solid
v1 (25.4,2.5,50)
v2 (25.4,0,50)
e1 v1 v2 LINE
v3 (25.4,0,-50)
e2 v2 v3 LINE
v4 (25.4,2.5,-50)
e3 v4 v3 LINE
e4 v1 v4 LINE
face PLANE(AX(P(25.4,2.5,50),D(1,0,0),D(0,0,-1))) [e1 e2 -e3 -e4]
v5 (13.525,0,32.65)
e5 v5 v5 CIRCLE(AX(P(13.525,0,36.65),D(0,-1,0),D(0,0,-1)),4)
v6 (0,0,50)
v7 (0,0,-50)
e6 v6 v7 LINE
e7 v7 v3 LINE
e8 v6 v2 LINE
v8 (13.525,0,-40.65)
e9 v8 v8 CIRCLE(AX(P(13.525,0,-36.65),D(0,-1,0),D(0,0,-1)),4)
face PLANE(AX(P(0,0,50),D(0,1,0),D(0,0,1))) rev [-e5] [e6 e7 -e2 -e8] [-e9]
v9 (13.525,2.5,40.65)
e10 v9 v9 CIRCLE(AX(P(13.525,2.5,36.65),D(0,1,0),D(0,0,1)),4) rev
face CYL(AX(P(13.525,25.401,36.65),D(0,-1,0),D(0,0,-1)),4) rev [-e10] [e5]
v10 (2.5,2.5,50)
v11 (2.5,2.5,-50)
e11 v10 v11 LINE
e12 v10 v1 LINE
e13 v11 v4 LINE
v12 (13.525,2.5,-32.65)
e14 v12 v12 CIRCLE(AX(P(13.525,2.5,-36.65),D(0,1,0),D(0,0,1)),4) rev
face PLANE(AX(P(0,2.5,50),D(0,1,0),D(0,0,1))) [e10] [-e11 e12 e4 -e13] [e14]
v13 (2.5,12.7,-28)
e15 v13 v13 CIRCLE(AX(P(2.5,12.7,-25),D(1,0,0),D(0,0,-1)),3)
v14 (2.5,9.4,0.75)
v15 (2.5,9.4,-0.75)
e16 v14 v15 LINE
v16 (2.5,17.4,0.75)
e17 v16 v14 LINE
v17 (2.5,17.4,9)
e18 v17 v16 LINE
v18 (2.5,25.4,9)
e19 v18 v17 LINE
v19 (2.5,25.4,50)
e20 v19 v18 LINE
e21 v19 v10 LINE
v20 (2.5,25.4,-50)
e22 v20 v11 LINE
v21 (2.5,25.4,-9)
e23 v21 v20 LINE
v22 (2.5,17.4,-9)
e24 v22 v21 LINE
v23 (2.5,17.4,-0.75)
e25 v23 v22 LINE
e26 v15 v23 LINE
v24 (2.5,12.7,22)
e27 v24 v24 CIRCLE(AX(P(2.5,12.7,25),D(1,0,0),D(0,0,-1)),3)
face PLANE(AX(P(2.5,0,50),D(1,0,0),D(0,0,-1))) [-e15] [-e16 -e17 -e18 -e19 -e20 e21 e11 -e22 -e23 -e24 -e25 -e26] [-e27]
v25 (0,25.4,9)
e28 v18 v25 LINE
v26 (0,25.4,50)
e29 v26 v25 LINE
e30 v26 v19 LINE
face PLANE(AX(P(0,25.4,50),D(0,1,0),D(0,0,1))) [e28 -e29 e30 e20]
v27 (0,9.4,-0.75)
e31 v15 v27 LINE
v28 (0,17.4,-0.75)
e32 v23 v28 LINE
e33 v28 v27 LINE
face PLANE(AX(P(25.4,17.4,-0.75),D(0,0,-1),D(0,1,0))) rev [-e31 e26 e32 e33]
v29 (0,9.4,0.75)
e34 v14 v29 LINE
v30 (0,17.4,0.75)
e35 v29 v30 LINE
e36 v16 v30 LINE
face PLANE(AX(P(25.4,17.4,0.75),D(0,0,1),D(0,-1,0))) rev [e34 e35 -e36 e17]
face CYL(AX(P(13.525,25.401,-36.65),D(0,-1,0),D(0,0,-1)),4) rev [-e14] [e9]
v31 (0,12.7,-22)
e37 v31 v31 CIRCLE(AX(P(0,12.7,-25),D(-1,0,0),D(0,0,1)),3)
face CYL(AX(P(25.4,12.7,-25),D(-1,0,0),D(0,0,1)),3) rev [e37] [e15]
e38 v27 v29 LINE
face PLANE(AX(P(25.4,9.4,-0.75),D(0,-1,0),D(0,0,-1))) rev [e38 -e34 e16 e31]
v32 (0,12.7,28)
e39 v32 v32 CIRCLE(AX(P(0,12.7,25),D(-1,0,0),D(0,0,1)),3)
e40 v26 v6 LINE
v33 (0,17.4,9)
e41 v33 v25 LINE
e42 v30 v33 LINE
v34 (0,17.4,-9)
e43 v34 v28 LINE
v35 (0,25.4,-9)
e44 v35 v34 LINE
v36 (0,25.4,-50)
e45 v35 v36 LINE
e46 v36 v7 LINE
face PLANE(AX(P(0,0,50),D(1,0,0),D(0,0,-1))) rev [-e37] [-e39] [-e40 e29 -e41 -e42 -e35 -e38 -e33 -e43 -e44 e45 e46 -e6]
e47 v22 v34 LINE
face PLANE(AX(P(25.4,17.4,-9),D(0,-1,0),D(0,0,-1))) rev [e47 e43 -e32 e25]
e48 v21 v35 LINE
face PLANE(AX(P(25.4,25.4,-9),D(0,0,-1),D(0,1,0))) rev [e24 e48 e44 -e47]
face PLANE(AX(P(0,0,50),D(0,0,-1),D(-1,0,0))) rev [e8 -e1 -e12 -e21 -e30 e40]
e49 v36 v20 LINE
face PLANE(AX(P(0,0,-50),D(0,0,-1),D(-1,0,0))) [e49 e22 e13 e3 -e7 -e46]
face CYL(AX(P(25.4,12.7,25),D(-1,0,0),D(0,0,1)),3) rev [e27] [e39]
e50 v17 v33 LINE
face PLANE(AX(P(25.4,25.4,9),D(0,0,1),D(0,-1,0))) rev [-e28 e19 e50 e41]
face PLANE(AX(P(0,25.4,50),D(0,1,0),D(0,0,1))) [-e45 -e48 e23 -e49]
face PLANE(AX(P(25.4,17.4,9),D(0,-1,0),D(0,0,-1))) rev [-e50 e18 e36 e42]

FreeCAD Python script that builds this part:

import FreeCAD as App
import Part
import Sketcher
from FreeCAD import Vector

doc = App.newDocument("Part")
params = doc.addObject("Spreadsheet::Sheet", "Params")
for row, (alias, value) in enumerate([
    ("sketch1_width", "25.4 mm"),
    ("sketch1_width2", "22.9 mm"),
    ("pad1_length", "100 mm"),
    ("sketch2_diameter", "6 mm"),
    ("sketch2_width", "8 mm"),
    ("sketch2_height", "18 mm"),
    ("sketch2_height2", "1.5 mm"),
    ("sketch3_diameter", "8 mm"),
    ("sketch4_diameter", "8 mm"),
], start=1):
    params.set(f"A{row}", alias)
    params.set(f"B{row}", "=" + value)
    params.setAlias(f"B{row}", alias)

body = doc.addObject("PartDesign::Body", "Body")

# Sketch on XY plane
sketch1 = body.newObject("Sketcher::SketchObject", "Sketch")
sketch1.AttachmentSupport = (doc.getObject("XY_Plane"), [""])
sketch1.MapMode = "FlatFace"
sketch1.addGeometry(Part.LineSegment(Vector(0, 0, 0), Vector(25.4, 0, 0)), False)
sketch1.addGeometry(Part.LineSegment(Vector(25.4, 0, 0), Vector(25.4, 2.5, 0)), False)
sketch1.addGeometry(Part.LineSegment(Vector(25.4, 2.5, 0), Vector(2.5, 2.5, 0)), False)
sketch1.addGeometry(Part.LineSegment(Vector(2.5, 2.5, 0), Vector(2.5, 25.4, 0)), False)
sketch1.addGeometry(Part.LineSegment(Vector(2.5, 25.4, 0), Vector(0, 25.4, 0)), False)
sketch1.addGeometry(Part.LineSegment(Vector(0, 25.4, 0), Vector(0, 0, 0)), False)
sketch1.addConstraint(Sketcher.Constraint("Coincident", 0, 2, 1, 1))
sketch1.addConstraint(Sketcher.Constraint("Coincident", 1, 2, 2, 1))
sketch1.addConstraint(Sketcher.Constraint("Coincident", 2, 2, 3, 1))
sketch1.addConstraint(Sketcher.Constraint("Coincident", 3, 2, 4, 1))
sketch1.addConstraint(Sketcher.Constraint("Coincident", 4, 2, 5, 1))
sketch1.addConstraint(Sketcher.Constraint("Coincident", 5, 2, 0, 1))
sketch1.addConstraint(Sketcher.Constraint("Horizontal", 0))
sketch1.addConstraint(Sketcher.Constraint("Vertical", 1))
sketch1.addConstraint(Sketcher.Constraint("Horizontal", 2))
sketch1.addConstraint(Sketcher.Constraint("Vertical", 3))
sketch1.addConstraint(Sketcher.Constraint("Horizontal", 4))
sketch1.addConstraint(Sketcher.Constraint("Vertical", 5))
sketch1.addConstraint(Sketcher.Constraint("Coincident", 5, 2, -1, 1))
sketch1.addConstraint(Sketcher.Constraint("Equal", 4, 1))
sketch1.addConstraint(Sketcher.Constraint("Equal", 2, 3))
sketch1.addConstraint(Sketcher.Constraint("DistanceX", 0, 1, 0, 2, 25.4))
sketch1.addConstraint(Sketcher.Constraint("DistanceX", 2, 2, 2, 1, 22.9))
sketch1.setExpression("Constraints[15]", "Params.sketch1_width")
sketch1.setExpression("Constraints[16]", "Params.sketch1_width2")
pad1 = body.newObject("PartDesign::Pad", "Pad")
pad1.Profile = sketch1
pad1.setExpression("Length", "Params.pad1_length")
pad1.Midplane = True

# Sketch on YZ plane
sketch2 = body.newObject("Sketcher::SketchObject", "Sketch001")
sketch2.AttachmentSupport = (doc.getObject("YZ_Plane"), [""])
sketch2.MapMode = "FlatFace"
sketch2.addGeometry(Part.Circle(Vector(12.7, -25, 0), Vector(0, 0, 1), 3), False)
sketch2.addGeometry(Part.Circle(Vector(12.7, 25, 0), Vector(0, 0, 1), 3), False)
sketch2.addGeometry(Part.LineSegment(Vector(25.4, -9, 0), Vector(17.4, -9, 0)), False)
sketch2.addGeometry(Part.LineSegment(Vector(17.4, -9, 0), Vector(17.4, -0.75, 0)), False)
sketch2.addGeometry(Part.LineSegment(Vector(17.4, -0.75, 0), Vector(9.4, -0.75, 0)), False)
sketch2.addGeometry(Part.LineSegment(Vector(9.4, -0.75, 0), Vector(9.4, 0.75, 0)), False)
sketch2.addGeometry(Part.LineSegment(Vector(9.4, 0.75, 0), Vector(17.4, 0.75, 0)), False)
sketch2.addGeometry(Part.LineSegment(Vector(17.4, 0.75, 0), Vector(17.4, 9, 0)), False)
sketch2.addGeometry(Part.LineSegment(Vector(17.4, 9, 0), Vector(25.4, 9, 0)), False)
sketch2.addGeometry(Part.LineSegment(Vector(25.4, 9, 0), Vector(25.4, -9, 0)), False)
sketch2.addConstraint(Sketcher.Constraint("Coincident", 2, 2, 3, 1))
sketch2.addConstraint(Sketcher.Constraint("Coincident", 3, 2, 4, 1))
sketch2.addConstraint(Sketcher.Constraint("Coincident", 4, 2, 5, 1))
sketch2.addConstraint(Sketcher.Constraint("Coincident", 5, 2, 6, 1))
sketch2.addConstraint(Sketcher.Constraint("Coincident", 6, 2, 7, 1))
sketch2.addConstraint(Sketcher.Constraint("Coincident", 7, 2, 8, 1))
sketch2.addConstraint(Sketcher.Constraint("Coincident", 8, 2, 9, 1))
sketch2.addConstraint(Sketcher.Constraint("Coincident", 9, 2, 2, 1))
sketch2.addConstraint(Sketcher.Constraint("Horizontal", 2))
sketch2.addConstraint(Sketcher.Constraint("Vertical", 3))
sketch2.addConstraint(Sketcher.Constraint("Horizontal", 4))
sketch2.addConstraint(Sketcher.Constraint("Vertical", 5))
sketch2.addConstraint(Sketcher.Constraint("Horizontal", 6))
sketch2.addConstraint(Sketcher.Constraint("Vertical", 7))
sketch2.addConstraint(Sketcher.Constraint("Horizontal", 8))
sketch2.addConstraint(Sketcher.Constraint("Vertical", 9))
sketch2.addConstraint(Sketcher.Constraint("Equal", 0, 1))
sketch2.addConstraint(Sketcher.Constraint("Symmetric", 0, 3, 1, 3, -1))
sketch2.addConstraint(Sketcher.Constraint("Symmetric", 3, 2, 6, 2, -1))
sketch2.addConstraint(Sketcher.Constraint("Equal", 2, 4))
sketch2.addConstraint(Sketcher.Constraint("Equal", 3, 7))
sketch2.addConstraint(Sketcher.Constraint("Diameter", 0, 6.0))
sketch2.addConstraint(Sketcher.Constraint("DistanceX", 2, 2, 2, 1, 8.0))
sketch2.addConstraint(Sketcher.Constraint("DistanceY", 9, 2, 9, 1, 18.0))
sketch2.addConstraint(Sketcher.Constraint("DistanceY", 5, 1, 5, 2, 1.5))
sketch2.addConstraint(Sketcher.Constraint("DistanceY", 0, 3, -1, 1, 25.0))
sketch2.addConstraint(Sketcher.Constraint("DistanceX", -1, 1, 0, 3, 12.7))
sketch2.addConstraint(Sketcher.Constraint("DistanceX", -1, 1, 2, 2, 17.4))
sketch2.setExpression("Constraints[21]", "Params.sketch2_diameter")
sketch2.setExpression("Constraints[22]", "Params.sketch2_width")
sketch2.setExpression("Constraints[23]", "Params.sketch2_height")
sketch2.setExpression("Constraints[24]", "Params.sketch2_height2")
pocket1 = body.newObject("PartDesign::Pocket", "Pocket")
pocket1.Profile = sketch2
pocket1.Type = "ThroughAll"
pocket1.Reversed = True

# Sketch on XZ plane
sketch3 = body.newObject("Sketcher::SketchObject", "Sketch002")
sketch3.AttachmentSupport = (doc.getObject("XZ_Plane"), [""])
sketch3.MapMode = "FlatFace"
sketch3.addGeometry(Part.Circle(Vector(13.525, 36.65, 0), Vector(0, 0, 1), 4), False)
sketch3.addConstraint(Sketcher.Constraint("Diameter", 0, 8.0))
sketch3.addConstraint(Sketcher.Constraint("DistanceY", -1, 1, 0, 3, 36.65))
sketch3.addConstraint(Sketcher.Constraint("DistanceX", -1, 1, 0, 3, 13.525))
sketch3.setExpression("Constraints[0]", "Params.sketch3_diameter")
pocket2 = body.newObject("PartDesign::Pocket", "Pocket001")
pocket2.Profile = sketch3
pocket2.Type = "UpToFirst"

# Sketch on XZ plane
sketch4 = body.newObject("Sketcher::SketchObject", "Sketch003")
sketch4.AttachmentSupport = (doc.getObject("XZ_Plane"), [""])
sketch4.MapMode = "FlatFace"
sketch4.addGeometry(Part.Circle(Vector(13.525, -36.65, 0), Vector(0, 0, 1), 4), False)
sketch4.addConstraint(Sketcher.Constraint("Diameter", 0, 8.0))
sketch4.addConstraint(Sketcher.Constraint("DistanceY", 0, 3, -1, 1, 36.65))
sketch4.addConstraint(Sketcher.Constraint("DistanceX", -1, 1, 0, 3, 13.525))
sketch4.setExpression("Constraints[0]", "Params.sketch4_diameter")
pocket3 = body.newObject("PartDesign::Pocket", "Pocket002")
pocket3.Profile = sketch4
pocket3.Type = "UpToFirst"

doc.recompute()
